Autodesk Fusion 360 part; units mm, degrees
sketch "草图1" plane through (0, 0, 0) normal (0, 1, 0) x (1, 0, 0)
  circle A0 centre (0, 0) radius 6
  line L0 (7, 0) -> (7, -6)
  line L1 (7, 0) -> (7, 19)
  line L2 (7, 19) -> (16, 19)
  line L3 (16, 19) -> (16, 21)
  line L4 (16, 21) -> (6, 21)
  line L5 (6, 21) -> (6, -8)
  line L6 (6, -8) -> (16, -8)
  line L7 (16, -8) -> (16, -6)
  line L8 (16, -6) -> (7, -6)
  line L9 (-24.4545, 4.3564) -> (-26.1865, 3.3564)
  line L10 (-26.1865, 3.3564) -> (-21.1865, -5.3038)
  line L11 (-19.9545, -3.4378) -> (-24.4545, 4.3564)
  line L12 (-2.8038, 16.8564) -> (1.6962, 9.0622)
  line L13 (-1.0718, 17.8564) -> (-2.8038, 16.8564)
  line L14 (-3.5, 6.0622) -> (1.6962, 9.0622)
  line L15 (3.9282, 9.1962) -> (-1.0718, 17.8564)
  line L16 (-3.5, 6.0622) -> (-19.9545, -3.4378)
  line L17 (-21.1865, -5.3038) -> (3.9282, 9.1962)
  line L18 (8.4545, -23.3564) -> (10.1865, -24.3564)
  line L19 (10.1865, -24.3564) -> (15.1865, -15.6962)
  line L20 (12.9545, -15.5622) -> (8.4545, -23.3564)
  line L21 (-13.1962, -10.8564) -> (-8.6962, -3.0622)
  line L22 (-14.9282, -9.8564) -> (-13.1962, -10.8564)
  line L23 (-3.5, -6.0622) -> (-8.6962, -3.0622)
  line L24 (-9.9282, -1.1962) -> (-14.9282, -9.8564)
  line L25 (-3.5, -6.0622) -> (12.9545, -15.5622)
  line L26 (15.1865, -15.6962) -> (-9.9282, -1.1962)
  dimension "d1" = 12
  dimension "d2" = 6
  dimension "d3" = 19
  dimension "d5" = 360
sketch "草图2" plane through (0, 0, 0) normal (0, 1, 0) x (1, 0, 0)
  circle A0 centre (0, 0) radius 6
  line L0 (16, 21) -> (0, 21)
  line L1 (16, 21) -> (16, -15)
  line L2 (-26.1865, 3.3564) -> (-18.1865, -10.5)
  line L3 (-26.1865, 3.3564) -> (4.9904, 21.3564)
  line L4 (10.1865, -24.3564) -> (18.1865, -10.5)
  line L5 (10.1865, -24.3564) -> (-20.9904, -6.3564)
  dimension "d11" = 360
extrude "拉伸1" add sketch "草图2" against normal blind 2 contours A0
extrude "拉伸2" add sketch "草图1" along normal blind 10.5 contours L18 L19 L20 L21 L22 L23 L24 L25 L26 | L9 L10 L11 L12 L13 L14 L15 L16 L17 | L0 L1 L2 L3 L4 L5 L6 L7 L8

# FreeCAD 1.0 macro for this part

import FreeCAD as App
import Part
import Sketcher

V = App.Vector
Q = App.Units.Quantity

doc = App.newDocument("Part")
params = doc.addObject("Spreadsheet::Sheet", "Params")
for row, (alias, value) in enumerate([
    ("sketch1_diameter", "12 mm"),
    ("pad1_length", "2 mm"),
    ("sketch2_length", "6 mm"),
    ("sketch2_length2", "19 mm"),
    ("sketch2_width", "10 mm"),
    ("sketch2_width2", "9 mm"),
    ("sketch2_height", "29 mm"),
    ("pad2_length", "10.5 mm"),
], start=1):
    params.set(f"A{row}", alias)
    params.set(f"B{row}", "=" + value)
    params.setAlias(f"B{row}", alias)

body = doc.addObject("PartDesign::Body", "Body")
body.AllowCompound = True

# Sketch on XZ plane
sketch1 = doc.addObject("Sketcher::SketchObject", "Sketch")
body.addObject(sketch1)
sketch1.AttachmentSupport = (doc.XZ_Plane, [""])
sketch1.MapMode = "FlatFace"
sketch1.addGeometry(Part.Circle(V(0, 0, 0), V(0, 0, 1), 6), False)
sketch1.addConstraint(Sketcher.Constraint("Coincident", 0, 3, -1, 1))
sketch1.addConstraint(Sketcher.Constraint("Diameter", 0, 12.0))
sketch1.setExpression("Constraints[1]", "Params.sketch1_diameter")
pad1 = doc.addObject("PartDesign::Pad", "Pad")
body.addObject(pad1)
pad1.Profile = sketch1
pad1.setExpression("Length", "Params.pad1_length")

# Sketch on XZ plane
sketch2 = doc.addObject("Sketcher::SketchObject", "Sketch001")
body.addObject(sketch2)
sketch2.AttachmentSupport = (doc.XZ_Plane, [""])
sketch2.MapMode = "FlatFace"
sketch2.addGeometry(Part.LineSegment(V(15.2, 15.7, 0), V(-9.9, 1.2, 0)), False)
sketch2.addGeometry(Part.LineSegment(V(-9.9, 1.2, 0), V(-14.9, 9.9, 0)), False)
sketch2.addGeometry(Part.LineSegment(V(-14.9, 9.9, 0), V(-13.2, 10.9, 0)), False)
sketch2.addGeometry(Part.LineSegment(V(-13.2, 10.9, 0), V(-8.7, 3.1, 0)), False)
sketch2.addGeometry(Part.LineSegment(V(-8.7, 3.1, 0), V(-3.5, 6.1, 0)), False)
sketch2.addGeometry(Part.LineSegment(V(-3.5, 6.1, 0), V(13, 15.6, 0)), False)
sketch2.addGeometry(Part.LineSegment(V(13, 15.6, 0), V(8.5, 23.4, 0)), False)
sketch2.addGeometry(Part.LineSegment(V(8.5, 23.4, 0), V(10.2, 24.4, 0)), False)
sketch2.addGeometry(Part.LineSegment(V(10.2, 24.4, 0), V(15.2, 15.7, 0)), False)
sketch2.addGeometry(Part.LineSegment(V(-21.2, 5.3, 0), V(3.9, -9.2, 0)), False)
sketch2.addGeometry(Part.LineSegment(V(3.9, -9.2, 0), V(-1.1, -17.9, 0)), False)
sketch2.addGeometry(Part.LineSegment(V(-1.1, -17.9, 0), V(-2.8, -16.9, 0)), False)
sketch2.addGeometry(Part.LineSegment(V(-2.8, -16.9, 0), V(1.7, -9.1, 0)), False)
sketch2.addGeometry(Part.LineSegment(V(1.7, -9.1, 0), V(-3.5, -6.1, 0)), False)
sketch2.addGeometry(Part.LineSegment(V(-3.5, -6.1, 0), V(-20, 3.4, 0)), False)
sketch2.addGeometry(Part.LineSegment(V(-20, 3.4, 0), V(-24.5, -4.4, 0)), False)
sketch2.addGeometry(Part.LineSegment(V(-24.5, -4.4, 0), V(-26.2, -3.4, 0)), False)
sketch2.addGeometry(Part.LineSegment(V(-26.2, -3.4, 0), V(-21.2, 5.3, 0)), False)
sketch2.addGeometry(Part.LineSegment(V(6, -21, 0), V(6, 8, 0)), False)
sketch2.addGeometry(Part.LineSegment(V(6, 8, 0), V(16, 8, 0)), False)
sketch2.addGeometry(Part.LineSegment(V(16, 8, 0), V(16, 6, 0)), False)
sketch2.addGeometry(Part.LineSegment(V(16, 6, 0), V(7, 6, 0)), False)
sketch2.addGeometry(Part.LineSegment(V(7, 6, 0), V(7, -19, 0)), False)
sketch2.addGeometry(Part.LineSegment(V(7, -19, 0), V(16, -19, 0)), False)
sketch2.addGeometry(Part.LineSegment(V(16, -19, 0), V(16, -21, 0)), False)
sketch2.addGeometry(Part.LineSegment(V(16, -21, 0), V(6, -21, 0)), False)
sketch2.addConstraint(Sketcher.Constraint("Coincident", 0, 2, 1, 1))
sketch2.addConstraint(Sketcher.Constraint("Coincident", 1, 2, 2, 1))
sketch2.addConstraint(Sketcher.Constraint("Coincident", 2, 2, 3, 1))
sketch2.addConstraint(Sketcher.Constraint("Coincident", 3, 2, 4, 1))
sketch2.addConstraint(Sketcher.Constraint("Coincident", 4, 2, 5, 1))
sketch2.addConstraint(Sketcher.Constraint("Coincident", 5, 2, 6, 1))
sketch2.addConstraint(Sketcher.Constraint("Coincident", 6, 2, 7, 1))
sketch2.addConstraint(Sketcher.Constraint("Coincident", 7, 2, 8, 1))
sketch2.addConstraint(Sketcher.Constraint("Coincident", 8, 2, 0, 1))
sketch2.addConstraint(Sketcher.Constraint("Coincident", 9, 2, 10, 1))
sketch2.addConstraint(Sketcher.Constraint("Coincident", 10, 2, 11, 1))
sketch2.addConstraint(Sketcher.Constraint("Coincident", 11, 2, 12, 1))
sketch2.addConstraint(Sketcher.Constraint("Coincident", 12, 2, 13, 1))
sketch2.addConstraint(Sketcher.Constraint("Coincident", 13, 2, 14, 1))
sketch2.addConstraint(Sketcher.Constraint("Coincident", 14, 2, 15, 1))
sketch2.addConstraint(Sketcher.Constraint("Coincident", 15, 2, 16, 1))
sketch2.addConstraint(Sketcher.Constraint("Coincident", 16, 2, 17, 1))
sketch2.addConstraint(Sketcher.Constraint("Coincident", 17, 2, 9, 1))
sketch2.addConstraint(Sketcher.Constraint("Coincident", 18, 2, 19, 1))
sketch2.addConstraint(Sketcher.Constraint("Coincident", 19, 2, 20, 1))
sketch2.addConstraint(Sketcher.Constraint("Coincident", 20, 2, 21, 1))
sketch2.addConstraint(Sketcher.Constraint("Coincident", 21, 2, 22, 1))
sketch2.addConstraint(Sketcher.Constraint("Coincident", 22, 2, 23, 1))
sketch2.addConstraint(Sketcher.Constraint("Coincident", 23, 2, 24, 1))
sketch2.addConstraint(Sketcher.Constraint("Coincident", 24, 2, 25, 1))
sketch2.addConstraint(Sketcher.Constraint("Coincident", 25, 2, 18, 1))
sketch2.addConstraint(Sketcher.Constraint("Vertical", 18))
sketch2.addConstraint(Sketcher.Constraint("Horizontal", 19))
sketch2.addConstraint(Sketcher.Constraint("Vertical", 20))
sketch2.addConstraint(Sketcher.Constraint("Horizontal", 21))
sketch2.addConstraint(Sketcher.Constraint("Vertical", 22))
sketch2.addConstraint(Sketcher.Constraint("Horizontal", 23))
sketch2.addConstraint(Sketcher.Constraint("Vertical", 24))
sketch2.addConstraint(Sketcher.Constraint("Horizontal", 25))
sketch2.addConstraint(Sketcher.Constraint("Symmetric", 4, 2, 13, 2, -1))
sketch2.addConstraint(Sketcher.Constraint("Perpendicular", 0, 1))
sketch2.addConstraint(Sketcher.Constraint("Perpendicular", 1, 2))
sketch2.addConstraint(Sketcher.Constraint("Perpendicular", 2, 3))
sketch2.addConstraint(Sketcher.Constraint("Perpendicular", 3, 4))
sketch2.addConstraint(Sketcher.Constraint("Parallel", 4, 5))
sketch2.addConstraint(Sketcher.Constraint("Perpendicular", 5, 6))
sketch2.addConstraint(Sketcher.Constraint("Perpendicular", 6, 7))
sketch2.addConstraint(Sketcher.Constraint("Perpendicular", 7, 8))
sketch2.addConstraint(Sketcher.Constraint("Perpendicular", 9, 10))
sketch2.addConstraint(Sketcher.Constraint("Perpendicular", 10, 11))
sketch2.addConstraint(Sketcher.Constraint("Perpendicular", 11, 12))
sketch2.addConstraint(Sketcher.Constraint("Perpendicular", 12, 13))
sketch2.addConstraint(Sketcher.Constraint("Parallel", 13, 14))
sketch2.addConstraint(Sketcher.Constraint("Perpendicular", 14, 15))
sketch2.addConstraint(Sketcher.Constraint("Perpendicular", 15, 16))
sketch2.addConstraint(Sketcher.Constraint("Perpendicular", 16, 17))
sketch2.addConstraint(Sketcher.Constraint("Vertical", 20, 2, 23, 2))
sketch2.addConstraint(Sketcher.Constraint("Equal", 20, 24))
sketch2.addConstraint(Sketcher.Constraint("Equal", 3, 6))
sketch2.addConstraint(Sketcher.Constraint("Equal", 2, 7))
sketch2.addConstraint(Sketcher.Constraint("Equal", 0, 9))
sketch2.addConstraint(Sketcher.Constraint("Equal", 8, 10))
sketch2.addConstraint(Sketcher.Constraint("Equal", 7, 11))
sketch2.addConstraint(Sketcher.Constraint("Equal", 6, 12))
sketch2.addConstraint(Sketcher.Constraint("Equal", 4, 13))
sketch2.addConstraint(Sketcher.Constraint("Equal", 5, 14))
sketch2.addConstraint(Sketcher.Constraint("Equal", 12, 15))
sketch2.addConstraint(Sketcher.Constraint("Distance", 4, 6.0))
sketch2.addConstraint(Sketcher.Constraint("Distance", 5, 19.0))
sketch2.addConstraint(Sketcher.Constraint("DistanceX", -1, 1, 18, 2, 6.0))
sketch2.addConstraint(Sketcher.Constraint("DistanceY", -1, 1, 20, 2, 6.0))
sketch2.addConstraint(Sketcher.Constraint("DistanceY", 22, 2, -1, 1, 19.0))
sketch2.addConstraint(Sketcher.Constraint("DistanceX", 19, 1, 19, 2, 10.0))
sketch2.addConstraint(Sketcher.Constraint("DistanceX", 21, 2, 21, 1, 9.0))
sketch2.addConstraint(Sketcher.Constraint("DistanceY", 18, 1, 18, 2, 29.0))
sketch2.addConstraint(Sketcher.Constraint("Angle", 0, Q("-150 deg")))
sketch2.addConstraint(Sketcher.Constraint("Angle", 9, Q("-30 deg")))
sketch2.addConstraint(Sketcher.Constraint("Distance", 0, 29.0))
sketch2.addConstraint(Sketcher.Constraint("Distance", 1, 10.0))
sketch2.addConstraint(Sketcher.Constraint("Distance", 3, 9.0))
sketch2.addConstraint(Sketcher.Constraint("DistanceX", 4, 2, -1, 1, 3.5))
sketch2.addConstraint(Sketcher.Constraint("DistanceY", -1, 1, 0, 2, 1.1962))
sketch2.setExpression("Constraints[62]", "Params.sketch2_length")
sketch2.setExpression("Constraints[63]", "Params.sketch2_length2")
sketch2.setExpression("Constraints[67]", "Params.sketch2_width")
sketch2.setExpression("Constraints[68]", "Params.sketch2_width2")
sketch2.setExpression("Constraints[69]", "Params.sketch2_height")
pad2 = doc.addObject("PartDesign::Pad", "Pad001")
body.addObject(pad2)
pad2.Profile = sketch2
pad2.setExpression("Length", "Params.pad2_length")
pad2.Reversed = True

doc.recompute()
